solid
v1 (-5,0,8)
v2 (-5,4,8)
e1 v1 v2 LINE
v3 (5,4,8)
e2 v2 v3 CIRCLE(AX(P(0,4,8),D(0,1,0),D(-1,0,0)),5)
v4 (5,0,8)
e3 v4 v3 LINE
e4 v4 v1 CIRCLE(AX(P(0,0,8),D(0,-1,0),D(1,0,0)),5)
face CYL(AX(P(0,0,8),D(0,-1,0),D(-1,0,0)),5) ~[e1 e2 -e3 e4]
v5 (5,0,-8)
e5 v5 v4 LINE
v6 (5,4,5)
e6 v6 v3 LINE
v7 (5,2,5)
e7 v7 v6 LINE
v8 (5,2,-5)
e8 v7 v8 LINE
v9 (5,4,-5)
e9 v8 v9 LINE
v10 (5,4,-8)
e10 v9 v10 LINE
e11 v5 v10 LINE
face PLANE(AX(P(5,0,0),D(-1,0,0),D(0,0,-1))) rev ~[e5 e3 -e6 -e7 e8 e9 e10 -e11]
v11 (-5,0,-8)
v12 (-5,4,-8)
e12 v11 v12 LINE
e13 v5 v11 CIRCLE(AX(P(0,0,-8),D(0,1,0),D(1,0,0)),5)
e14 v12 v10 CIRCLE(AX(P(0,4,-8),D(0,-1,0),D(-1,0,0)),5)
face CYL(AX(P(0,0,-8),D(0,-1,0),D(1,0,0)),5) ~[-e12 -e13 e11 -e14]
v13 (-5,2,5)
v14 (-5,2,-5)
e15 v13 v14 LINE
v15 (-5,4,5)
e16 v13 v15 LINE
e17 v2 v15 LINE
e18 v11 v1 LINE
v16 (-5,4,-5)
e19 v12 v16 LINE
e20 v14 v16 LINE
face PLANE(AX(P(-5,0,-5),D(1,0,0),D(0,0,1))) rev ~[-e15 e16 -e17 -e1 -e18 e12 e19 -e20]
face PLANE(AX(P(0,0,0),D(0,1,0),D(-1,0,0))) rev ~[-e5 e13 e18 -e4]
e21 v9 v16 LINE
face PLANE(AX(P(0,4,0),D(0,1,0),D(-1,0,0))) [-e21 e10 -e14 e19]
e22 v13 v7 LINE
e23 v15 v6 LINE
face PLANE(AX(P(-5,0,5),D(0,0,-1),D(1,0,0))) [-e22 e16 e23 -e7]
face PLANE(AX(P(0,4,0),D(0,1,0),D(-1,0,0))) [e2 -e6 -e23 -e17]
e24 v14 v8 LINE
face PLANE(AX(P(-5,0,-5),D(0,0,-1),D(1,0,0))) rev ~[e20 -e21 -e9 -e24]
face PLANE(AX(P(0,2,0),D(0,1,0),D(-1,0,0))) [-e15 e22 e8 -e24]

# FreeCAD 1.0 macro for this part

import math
import FreeCAD as App
import Part
import Sketcher

V = App.Vector
Q = App.Units.Quantity

doc = App.newDocument("Part")
body = doc.addObject("PartDesign::Body", "Body")

sketch1 = doc.addObject("Sketcher::SketchObject", "Sketch")
body.addObject(sketch1)
sketch1.AttachmentSupport = (doc.XZ_Plane, [""])
sketch1.MapMode = "FlatFace"
sketch1.addGeometry([
    Part.LineSegment(V(-5, -5, 0), V(-5, 5, 0)),
    Part.LineSegment(V(-5, 5, 0), V(5, 5, 0)),
    Part.LineSegment(V(5, 5, 0), V(5, -5, 0)),
    Part.LineSegment(V(5, -5, 0), V(-5, -5, 0)),
], False)
sketch1.addConstraint([
    Sketcher.Constraint("Coincident", 0, 2, 1, 1),
    Sketcher.Constraint("Coincident", 1, 2, 2, 1),
    Sketcher.Constraint("Coincident", 2, 2, 3, 1),
    Sketcher.Constraint("Coincident", 3, 2, 0, 1),
    Sketcher.Constraint("Vertical", 0),
    Sketcher.Constraint("Horizontal", 1),
    Sketcher.Constraint("Vertical", 2),
    Sketcher.Constraint("Horizontal", 3),
    Sketcher.Constraint("Symmetric", 0, 2, 2, 2, -1, 1),
    Sketcher.Constraint("Equal", 3, 0),
    Sketcher.Constraint("DistanceX", 1, 1, 1, 2, Q("10 mm")),
])
pad1 = doc.addObject("PartDesign::Pad", "Pad")
body.addObject(pad1)
pad1.Profile = sketch1
pad1.Length = 2
pad1.Reversed = True

sketch2 = doc.addObject("Sketcher::SketchObject", "Sketch001")
body.addObject(sketch2)
sketch2.AttachmentSupport = (doc.XZ_Plane, [""])
sketch2.MapMode = "FlatFace"
sketch2.addGeometry([
    Part.LineSegment(V(-5, 5, 0), V(-5, 8, 0)),
    Part.ArcOfCircle(Part.Circle(V(0, 8, 0), V(0, 0, 1), 5), math.radians(0), math.radians(180)),
    Part.LineSegment(V(5, 8, 0), V(5, 5, 0)),
    Part.LineSegment(V(5, 5, 0), V(-5, 5, 0)),
    Part.LineSegment(V(-5, -8, 0), V(-5, -5, 0)),
    Part.LineSegment(V(-5, -5, 0), V(5, -5, 0)),
    Part.LineSegment(V(5, -5, 0), V(5, -8, 0)),
    Part.ArcOfCircle(Part.Circle(V(0, -8, 0), V(0, 0, 1), 5), math.radians(180), math.radians(360)),
], False)
sketch2.addConstraint([
    Sketcher.Constraint("Tangent", 0, 2, 1, 2),
    Sketcher.Constraint("Tangent", 1, 1, 2, 1),
    Sketcher.Constraint("Coincident", 2, 2, 3, 1),
    Sketcher.Constraint("Coincident", 3, 2, 0, 1),
    Sketcher.Constraint("Coincident", 4, 2, 5, 1),
    Sketcher.Constraint("Coincident", 5, 2, 6, 1),
    Sketcher.Constraint("Tangent", 6, 2, 7, 2),
    Sketcher.Constraint("Tangent", 7, 1, 4, 1),
    Sketcher.Constraint("Vertical", 0),
    Sketcher.Constraint("Vertical", 2),
    Sketcher.Constraint("Horizontal", 3),
    Sketcher.Constraint("Vertical", 4),
    Sketcher.Constraint("Horizontal", 5),
    Sketcher.Constraint("Vertical", 6),
    Sketcher.Constraint("Equal", 1, 7),
    Sketcher.Constraint("Symmetric", 1, 3, 7, 3, -1, 1),
    Sketcher.Constraint("Symmetric", 3, 2, 4, 2, -1),
    Sketcher.Constraint("Radius", 1, Q("5 mm")),
    Sketcher.Constraint("DistanceY", 0, 1, 0, 2, Q("3 mm")),
    Sketcher.Constraint("DistanceY", -1, 1, 1, 3, Q("8 mm")),
])
pad2 = doc.addObject("PartDesign::Pad", "Pad001")
body.addObject(pad2)
pad2.Profile = sketch2
pad2.Length = 4
pad2.Reversed = True

doc.recompute()
